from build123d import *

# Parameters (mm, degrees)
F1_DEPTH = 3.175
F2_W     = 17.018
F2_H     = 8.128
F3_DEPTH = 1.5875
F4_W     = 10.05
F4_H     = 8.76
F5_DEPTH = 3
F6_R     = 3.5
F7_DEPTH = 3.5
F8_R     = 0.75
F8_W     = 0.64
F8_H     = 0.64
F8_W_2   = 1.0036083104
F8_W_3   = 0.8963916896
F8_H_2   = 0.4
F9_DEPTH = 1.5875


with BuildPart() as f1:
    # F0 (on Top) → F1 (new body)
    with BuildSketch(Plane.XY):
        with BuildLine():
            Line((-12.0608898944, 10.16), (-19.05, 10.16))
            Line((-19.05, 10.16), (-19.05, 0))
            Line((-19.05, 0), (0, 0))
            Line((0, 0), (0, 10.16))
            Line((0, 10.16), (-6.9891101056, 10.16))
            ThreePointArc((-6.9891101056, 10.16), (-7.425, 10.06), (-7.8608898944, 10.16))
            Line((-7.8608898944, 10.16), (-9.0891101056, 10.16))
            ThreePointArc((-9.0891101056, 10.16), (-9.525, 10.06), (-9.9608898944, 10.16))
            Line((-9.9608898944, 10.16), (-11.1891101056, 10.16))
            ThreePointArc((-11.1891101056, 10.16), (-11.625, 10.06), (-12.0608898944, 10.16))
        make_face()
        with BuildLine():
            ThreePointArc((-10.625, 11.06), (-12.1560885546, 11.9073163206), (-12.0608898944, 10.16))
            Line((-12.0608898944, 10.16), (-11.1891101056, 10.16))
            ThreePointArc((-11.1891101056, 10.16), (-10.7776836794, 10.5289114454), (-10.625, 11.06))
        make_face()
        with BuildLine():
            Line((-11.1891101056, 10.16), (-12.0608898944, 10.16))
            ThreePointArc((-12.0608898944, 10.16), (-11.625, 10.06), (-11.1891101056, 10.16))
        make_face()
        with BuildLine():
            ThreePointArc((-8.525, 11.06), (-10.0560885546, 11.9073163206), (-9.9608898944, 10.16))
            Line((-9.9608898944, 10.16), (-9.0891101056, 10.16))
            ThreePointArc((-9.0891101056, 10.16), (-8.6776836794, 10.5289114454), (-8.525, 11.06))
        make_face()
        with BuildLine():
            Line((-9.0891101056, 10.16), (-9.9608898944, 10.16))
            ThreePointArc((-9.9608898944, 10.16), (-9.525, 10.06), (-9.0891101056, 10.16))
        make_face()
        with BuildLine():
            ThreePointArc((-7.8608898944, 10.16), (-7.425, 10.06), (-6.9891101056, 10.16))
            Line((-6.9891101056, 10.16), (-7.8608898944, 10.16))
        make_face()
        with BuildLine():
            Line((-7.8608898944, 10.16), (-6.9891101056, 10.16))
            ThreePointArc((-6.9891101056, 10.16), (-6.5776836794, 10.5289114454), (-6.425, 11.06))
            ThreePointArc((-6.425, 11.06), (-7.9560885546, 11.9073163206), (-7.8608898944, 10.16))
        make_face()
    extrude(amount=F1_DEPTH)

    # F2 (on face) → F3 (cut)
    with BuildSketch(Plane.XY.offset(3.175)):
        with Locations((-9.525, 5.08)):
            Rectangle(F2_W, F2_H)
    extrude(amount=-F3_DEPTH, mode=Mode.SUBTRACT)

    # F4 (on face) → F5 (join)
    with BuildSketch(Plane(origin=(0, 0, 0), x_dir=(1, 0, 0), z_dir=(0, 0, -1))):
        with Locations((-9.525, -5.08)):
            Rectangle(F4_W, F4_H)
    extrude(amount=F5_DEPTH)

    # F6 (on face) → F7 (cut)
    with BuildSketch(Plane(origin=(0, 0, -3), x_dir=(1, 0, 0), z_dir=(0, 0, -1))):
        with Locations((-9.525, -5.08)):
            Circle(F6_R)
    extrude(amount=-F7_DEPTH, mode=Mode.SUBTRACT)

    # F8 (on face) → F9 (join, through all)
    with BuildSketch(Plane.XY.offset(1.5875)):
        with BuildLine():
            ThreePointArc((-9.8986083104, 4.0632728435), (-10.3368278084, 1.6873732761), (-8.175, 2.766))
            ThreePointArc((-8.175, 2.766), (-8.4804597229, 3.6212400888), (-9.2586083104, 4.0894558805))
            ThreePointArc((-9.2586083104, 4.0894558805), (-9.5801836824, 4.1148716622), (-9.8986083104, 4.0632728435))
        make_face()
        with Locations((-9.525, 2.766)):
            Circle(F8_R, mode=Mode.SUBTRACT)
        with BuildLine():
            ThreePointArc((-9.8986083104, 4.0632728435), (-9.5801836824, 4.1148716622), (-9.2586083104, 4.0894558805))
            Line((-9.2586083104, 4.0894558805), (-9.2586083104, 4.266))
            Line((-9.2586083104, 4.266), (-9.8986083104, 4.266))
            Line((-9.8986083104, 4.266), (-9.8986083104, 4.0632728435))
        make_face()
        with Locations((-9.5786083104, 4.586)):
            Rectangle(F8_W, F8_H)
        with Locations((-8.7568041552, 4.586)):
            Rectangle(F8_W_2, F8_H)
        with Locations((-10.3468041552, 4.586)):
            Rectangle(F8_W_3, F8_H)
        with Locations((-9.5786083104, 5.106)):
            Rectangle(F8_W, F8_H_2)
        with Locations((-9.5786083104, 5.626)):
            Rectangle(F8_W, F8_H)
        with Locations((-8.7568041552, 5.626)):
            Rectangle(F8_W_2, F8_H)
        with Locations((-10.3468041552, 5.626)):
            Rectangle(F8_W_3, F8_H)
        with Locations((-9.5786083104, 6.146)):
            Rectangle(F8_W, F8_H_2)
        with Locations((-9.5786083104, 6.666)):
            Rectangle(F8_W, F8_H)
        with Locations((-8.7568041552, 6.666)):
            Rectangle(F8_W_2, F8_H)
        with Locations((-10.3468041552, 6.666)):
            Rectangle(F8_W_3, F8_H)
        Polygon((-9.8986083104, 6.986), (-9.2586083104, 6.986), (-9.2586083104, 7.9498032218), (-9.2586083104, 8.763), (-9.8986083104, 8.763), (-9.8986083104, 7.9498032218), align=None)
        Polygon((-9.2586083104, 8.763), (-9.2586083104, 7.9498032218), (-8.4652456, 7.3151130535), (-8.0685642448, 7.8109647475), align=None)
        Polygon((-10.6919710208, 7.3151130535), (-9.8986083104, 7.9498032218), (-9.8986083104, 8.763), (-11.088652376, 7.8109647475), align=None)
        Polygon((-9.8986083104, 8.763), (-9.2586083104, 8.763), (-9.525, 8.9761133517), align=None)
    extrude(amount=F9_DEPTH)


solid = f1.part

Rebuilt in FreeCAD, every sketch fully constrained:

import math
import FreeCAD as App
import Part
import Sketcher
from FreeCAD import Vector
Q = App.Units.Quantity

doc = App.newDocument("Part")
params = doc.addObject("Spreadsheet::Sheet", "Params")
for row, (alias, value) in enumerate([
    ("sketch1_height", "0.4 in"),
    ("sketch1_width", "0.75 in"),
    ("pad1_length", "0.125 in"),
    ("sketch2_width", "0.67 in"),
    ("sketch2_height", "0.32 in"),
    ("pocket1_length", "0.0625 in"),
    ("pad2_length", "3 mm"),
    ("pocket2_length", "3.5 mm"),
    ("sketch5_length", "0.04 in"),
    ("sketch5_length2", "0.06 in"),
    ("sketch5_length3", "0.025 in"),
    ("pad3_length", "0.0625 in"),
], start=1):
    params.set(f"A{row}", alias)
    params.set(f"B{row}", "=" + value)
    params.setAlias(f"B{row}", alias)

body = doc.addObject("PartDesign::Body", "Body")

# Sketch on XY plane
sketch1 = body.newObject("Sketcher::SketchObject", "Sketch")
sketch1.AttachmentSupport = (doc.getObject("XY_Plane"), [""])
sketch1.MapMode = "FlatFace"
sketch1.addGeometry([
    Part.LineSegment(Vector(-12.1, 10.2, 0), Vector(-19.1, 10.2, 0)),  # 0
    Part.LineSegment(Vector(-19.1, 10.2, 0), Vector(-19.1, 0, 0)),  # 1
    Part.LineSegment(Vector(-19.1, 0, 0), Vector(0, 0, 0)),  # 2
    Part.LineSegment(Vector(0, 0, 0), Vector(0, 10.2, 0)),  # 3
    Part.LineSegment(Vector(0, 10.2, 0), Vector(-7, 10.2, 0)),  # 4
    Part.ArcOfCircle(Part.Circle(Vector(-7.4, 11.1, 0), Vector(0, 0, 1), 1), math.radians(-64), math.radians(0)),  # 5
    Part.ArcOfCircle(Part.Circle(Vector(-7.4, 11.1, 0), Vector(0, 0, 1), 1), math.radians(0), math.radians(244)),  # 6
    Part.LineSegment(Vector(-7.9, 10.2, 0), Vector(-9.1, 10.2, 0)),  # 7
    Part.ArcOfCircle(Part.Circle(Vector(-9.5, 11.1, 0), Vector(0, 0, 1), 1), math.radians(-64), math.radians(0)),  # 8
    Part.ArcOfCircle(Part.Circle(Vector(-9.5, 11.1, 0), Vector(0, 0, 1), 1), math.radians(0), math.radians(244)),  # 9
    Part.LineSegment(Vector(-10, 10.2, 0), Vector(-11.2, 10.2, 0)),  # 10
    Part.ArcOfCircle(Part.Circle(Vector(-11.6, 11.1, 0), Vector(0, 0, 1), 1), math.radians(-64), math.radians(0)),  # 11
    Part.ArcOfCircle(Part.Circle(Vector(-11.6, 11.1, 0), Vector(0, 0, 1), 1), math.radians(0), math.radians(244)),  # 12
], False)
sketch1.addConstraint([
    Sketcher.Constraint("Coincident", 0, 2, 1, 1),
    Sketcher.Constraint("Coincident", 1, 2, 2, 1),
    Sketcher.Constraint("Coincident", 2, 2, 3, 1),
    Sketcher.Constraint("Coincident", 3, 2, 4, 1),
    Sketcher.Constraint("Coincident", 4, 2, 5, 1),
    Sketcher.Constraint("Tangent", 5, 2, 6, 1),
    Sketcher.Constraint("Coincident", 6, 2, 7, 1),
    Sketcher.Constraint("Coincident", 7, 2, 8, 1),
    Sketcher.Constraint("Tangent", 8, 2, 9, 1),
    Sketcher.Constraint("Coincident", 9, 2, 10, 1),
    Sketcher.Constraint("Coincident", 10, 2, 11, 1),
    Sketcher.Constraint("Tangent", 11, 2, 12, 1),
    Sketcher.Constraint("Coincident", 12, 2, 0, 1),
    Sketcher.Constraint("Horizontal", 0),
    Sketcher.Constraint("Vertical", 1),
    Sketcher.Constraint("Horizontal", 2),
    Sketcher.Constraint("Vertical", 3),
    Sketcher.Constraint("Horizontal", 4),
    Sketcher.Constraint("Horizontal", 7),
    Sketcher.Constraint("Horizontal", 10),
    Sketcher.Constraint("Coincident", 2, 2, -1, 1),
    Sketcher.Constraint("Equal", 5, 6),
    Sketcher.Constraint("Equal", 6, 8),
    Sketcher.Constraint("Equal", 8, 9),
    Sketcher.Constraint("Equal", 9, 11),
    Sketcher.Constraint("Equal", 11, 12),
    Sketcher.Constraint("Horizontal", 6, 3, 8, 3),
    Sketcher.Constraint("Horizontal", 9, 3, 11, 3),
    Sketcher.Constraint("Horizontal", 0, 2, 3, 2),
    Sketcher.Constraint("Horizontal", 12, 3, 5, 2),
    Sketcher.Constraint("Horizontal", 4, 2, 6, 2),
    Sketcher.Constraint("Horizontal", 5, 2, 8, 2),
    Sketcher.Constraint("Horizontal", 7, 2, 9, 2),
    Sketcher.Constraint("Horizontal", 8, 2, 11, 2),
    Sketcher.Constraint("Equal", 0, 4),
    Sketcher.Constraint("Equal", 7, 10),
    Sketcher.Constraint("DistanceY", 1, 2, 1, 1, Q("0.4 in")),
    Sketcher.Constraint("DistanceX", 2, 1, 2, 2, Q("0.75 in")),
    Sketcher.Constraint("Radius", 5, 1.0),
    Sketcher.Constraint("DistanceX", 0, 2, 0, 1, 6.98911),
    Sketcher.Constraint("DistanceX", 7, 2, 7, 1, 1.22822),
])
sketch1.setExpression("Constraints[36]", "Params.sketch1_height")
sketch1.setExpression("Constraints[37]", "Params.sketch1_width")
pad1 = body.newObject("PartDesign::Pad", "Pad")
pad1.Profile = sketch1
pad1.setExpression("Length", "Params.pad1_length")

# Sketch on XY plane
sketch2 = body.newObject("Sketcher::SketchObject", "Sketch001")
sketch2.AttachmentSupport = (doc.getObject("XY_Plane"), [""])
sketch2.MapMode = "FlatFace"
sketch2.AttachmentOffset = App.Placement(Vector(0, 0, 0.125 * 25.4), App.Rotation())
sketch2.addGeometry([
    Part.LineSegment(Vector(-18, 9, 0), Vector(-18, 1, 0)),
    Part.LineSegment(Vector(-18, 1, 0), Vector(-1, 1, 0)),
    Part.LineSegment(Vector(-1, 1, 0), Vector(-1, 9, 0)),
    Part.LineSegment(Vector(-1, 9, 0), Vector(-18, 9, 0)),
], False)
sketch2.addConstraint([
    Sketcher.Constraint("Coincident", 0, 2, 1, 1),
    Sketcher.Constraint("Coincident", 1, 2, 2, 1),
    Sketcher.Constraint("Coincident", 2, 2, 3, 1),
    Sketcher.Constraint("Coincident", 3, 2, 0, 1),
    Sketcher.Constraint("Vertical", 0),
    Sketcher.Constraint("Horizontal", 1),
    Sketcher.Constraint("Vertical", 2),
    Sketcher.Constraint("Horizontal", 3),
    Sketcher.Constraint("DistanceX", 1, 1, 1, 2, Q("0.67 in")),
    Sketcher.Constraint("DistanceY", 0, 2, 0, 1, Q("0.32 in")),
    Sketcher.Constraint("DistanceX", 0, 2, -1, 1, Q("0.71 in")),
    Sketcher.Constraint("DistanceY", -1, 1, 0, 2, Q("0.04 in")),
])
sketch2.setExpression("Constraints[8]", "Params.sketch2_width")
sketch2.setExpression("Constraints[9]", "Params.sketch2_height")
pocket1 = body.newObject("PartDesign::Pocket", "Pocket")
pocket1.Profile = sketch2
pocket1.setExpression("Length", "Params.pocket1_length")

# Sketch on XY plane
sketch3 = body.newObject("Sketcher::SketchObject", "Sketch002")
sketch3.AttachmentSupport = (doc.getObject("XY_Plane"), [""])
sketch3.MapMode = "FlatFace"
sketch3.addGeometry([
    Part.LineSegment(Vector(-15, 1, 0), Vector(-15, 9, 0)),
    Part.LineSegment(Vector(-15, 9, 0), Vector(-4, 9, 0)),
    Part.LineSegment(Vector(-4, 9, 0), Vector(-4, 1, 0)),
    Part.LineSegment(Vector(-4, 1, 0), Vector(-15, 1, 0)),
], False)
sketch3.addConstraint([
    Sketcher.Constraint("Coincident", 0, 2, 1, 1),
    Sketcher.Constraint("Coincident", 1, 2, 2, 1),
    Sketcher.Constraint("Coincident", 2, 2, 3, 1),
    Sketcher.Constraint("Coincident", 3, 2, 0, 1),
    Sketcher.Constraint("Vertical", 0),
    Sketcher.Constraint("Horizontal", 1),
    Sketcher.Constraint("Vertical", 2),
    Sketcher.Constraint("Horizontal", 3),
    Sketcher.Constraint("DistanceX", 1, 1, 1, 2, 10.05),
    Sketcher.Constraint("DistanceY", 0, 1, 0, 2, 8.76),
    Sketcher.Constraint("DistanceX", 0, 2, -1, 1, 14.55),
    Sketcher.Constraint("DistanceY", -1, 1, 0, 2, 9.46),
])
pad2 = body.newObject("PartDesign::Pad", "Pad001")
pad2.Profile = sketch3
pad2.setExpression("Length", "Params.pad2_length")
pad2.Reversed = True

# Sketch on XY plane
sketch4 = body.newObject("Sketcher::SketchObject", "Sketch003")
sketch4.AttachmentSupport = (doc.getObject("XY_Plane"), [""])
sketch4.MapMode = "FlatFace"
sketch4.AttachmentOffset = App.Placement(Vector(0, 0, -3), App.Rotation())
sketch4.addGeometry(Part.Circle(Vector(-9.5, 5.1, 0), Vector(0, 0, 1), 3.5), False)
sketch4.addConstraint([
    Sketcher.Constraint("DistanceY", -1, 1, 0, 3, Q("0.2 in")),
    Sketcher.Constraint("Diameter", 0, 7.0),
    Sketcher.Constraint("DistanceX", 0, 3, -1, 1, Q("0.375 in")),
])
pocket2 = body.newObject("PartDesign::Pocket", "Pocket001")
pocket2.Profile = sketch4
pocket2.setExpression("Length", "Params.pocket2_length")
pocket2.Reversed = True

# Sketch on XY plane
sketch5 = body.newObject("Sketcher::SketchObject", "Sketch004")
sketch5.AttachmentSupport = (doc.getObject("XY_Plane"), [""])
sketch5.MapMode = "FlatFace"
sketch5.AttachmentOffset = App.Placement(Vector(0, 0, 0.0625 * 25.4), App.Rotation())
sketch5.addGeometry([
    Part.ArcOfCircle(Part.Circle(Vector(-9.53, 2.77, 0), Vector(0, 0, 1), 1.35), math.radians(106), math.radians(360)),  # 0
    Part.ArcOfCircle(Part.Circle(Vector(-9.53, 2.77, 0), Vector(0, 0, 1), 1.35), math.radians(0), math.radians(79)),  # 1
    Part.LineSegment(Vector(-9.26, 4.09, 0), Vector(-9.26, 4.27, 0)),  # 2
    Part.LineSegment(Vector(-9.26, 4.27, 0), Vector(-8.26, 4.27, 0)),  # 3
    Part.LineSegment(Vector(-8.26, 4.27, 0), Vector(-8.26, 4.91, 0)),  # 4
    Part.LineSegment(Vector(-8.26, 4.91, 0), Vector(-9.26, 4.91, 0)),  # 5
    Part.LineSegment(Vector(-9.26, 4.91, 0), Vector(-9.26, 5.31, 0)),  # 6
    Part.LineSegment(Vector(-9.26, 5.31, 0), Vector(-8.26, 5.31, 0)),  # 7
    Part.LineSegment(Vector(-8.26, 5.31, 0), Vector(-8.26, 5.95, 0)),  # 8
    Part.LineSegment(Vector(-8.26, 5.95, 0), Vector(-9.26, 5.95, 0)),  # 9
    Part.LineSegment(Vector(-9.26, 5.95, 0), Vector(-9.26, 6.35, 0)),  # 10
    Part.LineSegment(Vector(-9.26, 6.35, 0), Vector(-8.26, 6.35, 0)),  # 11
    Part.LineSegment(Vector(-8.26, 6.35, 0), Vector(-8.26, 6.99, 0)),  # 12
    Part.LineSegment(Vector(-8.26, 6.99, 0), Vector(-9.26, 6.99, 0)),  # 13
    Part.LineSegment(Vector(-9.26, 6.99, 0), Vector(-9.26, 7.95, 0)),  # 14
    Part.LineSegment(Vector(-9.26, 7.95, 0), Vector(-8.47, 7.32, 0)),  # 15
    Part.LineSegment(Vector(-8.47, 7.32, 0), Vector(-8.07, 7.81, 0)),  # 16
    Part.LineSegment(Vector(-8.07, 7.81, 0), Vector(-9.26, 8.76, 0)),  # 17
    Part.LineSegment(Vector(-9.26, 8.76, 0), Vector(-9.53, 8.98, 0)),  # 18
    Part.LineSegment(Vector(-9.53, 8.98, 0), Vector(-9.9, 8.76, 0)),  # 19
    Part.LineSegment(Vector(-9.9, 8.76, 0), Vector(-11.09, 7.81, 0)),  # 20
    Part.LineSegment(Vector(-11.09, 7.81, 0), Vector(-10.69, 7.32, 0)),  # 21
    Part.LineSegment(Vector(-10.69, 7.32, 0), Vector(-9.9, 7.95, 0)),  # 22
    Part.LineSegment(Vector(-9.9, 7.95, 0), Vector(-9.9, 6.99, 0)),  # 23
    Part.LineSegment(Vector(-9.9, 6.99, 0), Vector(-10.79, 6.99, 0)),  # 24
    Part.LineSegment(Vector(-10.79, 6.99, 0), Vector(-10.79, 6.35, 0)),  # 25
    Part.LineSegment(Vector(-10.79, 6.35, 0), Vector(-9.9, 6.35, 0)),  # 26
    Part.LineSegment(Vector(-9.9, 6.35, 0), Vector(-9.9, 5.95, 0)),  # 27
    Part.LineSegment(Vector(-9.9, 5.95, 0), Vector(-10.79, 5.95, 0)),  # 28
    Part.LineSegment(Vector(-10.79, 5.95, 0), Vector(-10.79, 5.31, 0)),  # 29
    Part.LineSegment(Vector(-10.79, 5.31, 0), Vector(-9.9, 5.31, 0)),  # 30
    Part.LineSegment(Vector(-9.9, 5.31, 0), Vector(-9.9, 4.91, 0)),  # 31
    Part.LineSegment(Vector(-9.9, 4.91, 0), Vector(-10.79, 4.91, 0)),  # 32
    Part.LineSegment(Vector(-10.79, 4.91, 0), Vector(-10.79, 4.27, 0)),  # 33
    Part.LineSegment(Vector(-10.79, 4.27, 0), Vector(-9.9, 4.27, 0)),  # 34
    Part.LineSegment(Vector(-9.9, 4.27, 0), Vector(-9.9, 4.06, 0)),  # 35
    Part.Circle(Vector(-9.53, 2.77, 0), Vector(0, 0, 1), 0.75),  # 36
], False)
sketch5.addConstraint([
    Sketcher.Constraint("Tangent", 0, 2, 1, 1),
    Sketcher.Constraint("Coincident", 1, 2, 2, 1),
    Sketcher.Constraint("Coincident", 2, 2, 3, 1),
    Sketcher.Constraint("Coincident", 3, 2, 4, 1),
    Sketcher.Constraint("Coincident", 4, 2, 5, 1),
    Sketcher.Constraint("Coincident", 5, 2, 6, 1),
    Sketcher.Constraint("Coincident", 6, 2, 7, 1),
    Sketcher.Constraint("Coincident", 7, 2, 8, 1),
    Sketcher.Constraint("Coincident", 8, 2, 9, 1),
    Sketcher.Constraint("Coincident", 9, 2, 10, 1),
    Sketcher.Constraint("Coincident", 10, 2, 11, 1),
    Sketcher.Constraint("Coincident", 11, 2, 12, 1),
    Sketcher.Constraint("Coincident", 12, 2, 13, 1),
    Sketcher.Constraint("Coincident", 13, 2, 14, 1),
    Sketcher.Constraint("Coincident", 14, 2, 15, 1),
    Sketcher.Constraint("Coincident", 15, 2, 16, 1),
    Sketcher.Constraint("Coincident", 16, 2, 17, 1),
    Sketcher.Constraint("Coincident", 17, 2, 18, 1),
    Sketcher.Constraint("Coincident", 18, 2, 19, 1),
    Sketcher.Constraint("Coincident", 19, 2, 20, 1),
    Sketcher.Constraint("Coincident", 20, 2, 21, 1),
    Sketcher.Constraint("Coincident", 21, 2, 22, 1),
    Sketcher.Constraint("Coincident", 22, 2, 23, 1),
    Sketcher.Constraint("Coincident", 23, 2, 24, 1),
    Sketcher.Constraint("Coincident", 24, 2, 25, 1),
    Sketcher.Constraint("Coincident", 25, 2, 26, 1),
    Sketcher.Constraint("Coincident", 26, 2, 27, 1),
    Sketcher.Constraint("Coincident", 27, 2, 28, 1),
    Sketcher.Constraint("Coincident", 28, 2, 29, 1),
    Sketcher.Constraint("Coincident", 29, 2, 30, 1),
    Sketcher.Constraint("Coincident", 30, 2, 31, 1),
    Sketcher.Constraint("Coincident", 31, 2, 32, 1),
    Sketcher.Constraint("Coincident", 32, 2, 33, 1),
    Sketcher.Constraint("Coincident", 33, 2, 34, 1),
    Sketcher.Constraint("Coincident", 34, 2, 35, 1),
    Sketcher.Constraint("Coincident", 35, 2, 0, 1),
    Sketcher.Constraint("Vertical", 2),
    Sketcher.Constraint("Horizontal", 3),
    Sketcher.Constraint("Vertical", 4),
    Sketcher.Constraint("Horizontal", 5),
    Sketcher.Constraint("Vertical", 6),
    Sketcher.Constraint("Horizontal", 7),
    Sketcher.Constraint("Vertical", 8),
    Sketcher.Constraint("Horizontal", 9),
    Sketcher.Constraint("Vertical", 10),
    Sketcher.Constraint("Horizontal", 11),
    Sketcher.Constraint("Vertical", 12),
    Sketcher.Constraint("Horizontal", 13),
    Sketcher.Constraint("Vertical", 14),
    Sketcher.Constraint("Vertical", 23),
    Sketcher.Constraint("Horizontal", 24),
    Sketcher.Constraint("Vertical", 25),
    Sketcher.Constraint("Horizontal", 26),
    Sketcher.Constraint("Vertical", 27),
    Sketcher.Constraint("Horizontal", 28),
    Sketcher.Constraint("Vertical", 29),
    Sketcher.Constraint("Horizontal", 30),
    Sketcher.Constraint("Vertical", 31),
    Sketcher.Constraint("Horizontal", 32),
    Sketcher.Constraint("Vertical", 33),
    Sketcher.Constraint("Horizontal", 34),
    Sketcher.Constraint("Vertical", 35),
    Sketcher.Constraint("Coincident", 36, 3, 0, 3),
    Sketcher.Constraint("Equal", 0, 1),
    Sketcher.Constraint("Perpendicular", 15, 16),
    Sketcher.Constraint("Perpendicular", 16, 17),
    Sketcher.Constraint("Parallel", 17, 18),
    Sketcher.Constraint("Perpendicular", 20, 21),
    Sketcher.Constraint("Perpendicular", 21, 22),
    Sketcher.Constraint("Horizontal", 36, 3, 0, 2),
    Sketcher.Constraint("Horizontal", 17, 2, 19, 2),
    Sketcher.Constraint("Horizontal", 16, 2, 20, 2),
    Sketcher.Constraint("Horizontal", 15, 2, 21, 2),
    Sketcher.Constraint("Horizontal", 14, 2, 22, 2),
    Sketcher.Constraint("Horizontal", 13, 2, 23, 2),
    Sketcher.Constraint("Horizontal", 11, 2, 25, 2),
    Sketcher.Constraint("Horizontal", 9, 2, 27, 2),
    Sketcher.Constraint("Horizontal", 7, 2, 29, 2),
    Sketcher.Constraint("Horizontal", 5, 2, 31, 2),
    Sketcher.Constraint("Horizontal", 3, 2, 33, 2),
    Sketcher.Constraint("Vertical", 2, 2, 5, 2),
    Sketcher.Constraint("Vertical", 4, 2, 7, 2),
    Sketcher.Constraint("Vertical", 6, 2, 9, 2),
    Sketcher.Constraint("Vertical", 8, 2, 11, 2),
    Sketcher.Constraint("Vertical", 10, 2, 13, 2),
    Sketcher.Constraint("Vertical", 14, 2, 17, 2),
    Sketcher.Constraint("Vertical", 36, 3, 18, 2),
    Sketcher.Constraint("Vertical", 19, 2, 22, 2),
    Sketcher.Constraint("Vertical", 23, 2, 26, 2),
    Sketcher.Constraint("Vertical", 25, 2, 28, 2),
    Sketcher.Constraint("Vertical", 27, 2, 30, 2),
    Sketcher.Constraint("Vertical", 29, 2, 32, 2),
    Sketcher.Constraint("Vertical", 31, 2, 34, 2),
    Sketcher.Constraint("Equal", 4, 8),
    Sketcher.Constraint("Equal", 6, 10),
    Sketcher.Constraint("Equal", 8, 12),
    Sketcher.Constraint("Distance", 15, Q("0.04 in")),
    Sketcher.Constraint("Distance", 17, Q("0.06 in")),
    Sketcher.Constraint("Diameter", 36, 1.5),
    Sketcher.Constraint("Radius", 0, 1.35),
    Sketcher.Constraint("DistanceX", 0, 3, 3, 2, Q("0.05 in")),
    Sketcher.Constraint("Distance", 16, Q("0.025 in")),
    Sketcher.Constraint("DistanceX", 0, 3, -1, 1, Q("0.375 in")),
    Sketcher.Constraint("DistanceY", -1, 1, 17, 2, Q("0.345 in")),
    Sketcher.Constraint("DistanceX", 24, 2, -1, 1, Q("0.425 in")),
    Sketcher.Constraint("DistanceY", 4, 1, 4, 2, 0.64),
    Sketcher.Constraint("DistanceY", 6, 1, 6, 2, 0.4),
    Sketcher.Constraint("DistanceX", 3, 1, 3, 2, 1.003608),
    Sketcher.Constraint("DistanceX", 24, 2, 24, 1, 0.896392),
    Sketcher.Constraint("DistanceY", -1, 1, 0, 3, 2.766),
    Sketcher.Constraint("DistanceY", -1, 1, 2, 2, 4.266),
])
sketch5.setExpression("Constraints[96]", "Params.sketch5_length")
sketch5.setExpression("Constraints[97]", "Params.sketch5_length2")
sketch5.setExpression("Constraints[101]", "Params.sketch5_length3")
pad3 = body.newObject("PartDesign::Pad", "Pad002")
pad3.Profile = sketch5
pad3.setExpression("Length", "Params.pad3_length")

doc.recompute()
